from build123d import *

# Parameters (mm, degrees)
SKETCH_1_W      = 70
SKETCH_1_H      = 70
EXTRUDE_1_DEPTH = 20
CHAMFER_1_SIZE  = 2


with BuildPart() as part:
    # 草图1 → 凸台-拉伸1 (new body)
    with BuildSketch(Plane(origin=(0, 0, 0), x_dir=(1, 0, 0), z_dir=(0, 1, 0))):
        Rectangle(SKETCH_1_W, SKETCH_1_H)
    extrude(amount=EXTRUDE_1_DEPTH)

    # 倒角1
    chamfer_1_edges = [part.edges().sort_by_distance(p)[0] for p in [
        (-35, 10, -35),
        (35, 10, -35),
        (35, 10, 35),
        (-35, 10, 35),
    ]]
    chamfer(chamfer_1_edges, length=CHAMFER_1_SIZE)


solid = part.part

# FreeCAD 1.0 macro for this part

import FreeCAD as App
import Part
import Sketcher


def edges_at(feature, points):
    """Names of the edges that pass closest to the given points."""
    edges = feature.Shape.Edges
    near = lambda p: min(range(len(edges)), key=lambda i: edges[i].distToShape(Part.Vertex(*p))[0])
    return sorted({f"Edge{near(p) + 1}" for p in points})


def add_polygon(sketch, points):
    """Adds a closed chain of lines whose ends are joined by coincident constraints."""
    first, n = sketch.GeometryCount, len(points)
    for a, b in zip(points, points[1:] + points[:1]):
        sketch.addGeometry(Part.LineSegment(App.Vector(*a, 0), App.Vector(*b, 0)), False)
    for i in range(n):
        sketch.addConstraint(Sketcher.Constraint("Coincident", first + i, 2, first + (i + 1) % n, 1))

doc = App.newDocument("Part")
body = doc.addObject("PartDesign::Body", "Body")

sketch1 = body.newObject("Sketcher::SketchObject", "Sketch")
sketch1.AttachmentSupport = (doc.getObject("XZ_Plane"), [""])
sketch1.MapMode = "FlatFace"
add_polygon(sketch1, [(-35, -35), (-35, 35), (35, 35), (35, -35)])
sketch1.addConstraint([
    Sketcher.Constraint("Vertical", 0),
    Sketcher.Constraint("Horizontal", 1),
    Sketcher.Constraint("Vertical", 2),
    Sketcher.Constraint("Horizontal", 3),
    Sketcher.Constraint("Symmetric", 0, 2, 2, 2, -1, 1),
    Sketcher.Constraint("Equal", 3, 0),
    Sketcher.Constraint("DistanceX", 1, 1, 1, 2, 70.0),
])
pad1 = body.newObject("PartDesign::Pad", "Pad")
pad1.Profile = sketch1
pad1.Length = 20
pad1.Reversed = True
doc.recompute()

chamfer = body.newObject("PartDesign::Chamfer", "Chamfer")
chamfer.Base = (pad1, edges_at(pad1, [
    (-35, 10, -35),
    (35, 10, -35),
    (35, 10, 35),
    (-35, 10, 35),
]))
chamfer.Size = 2

doc.recompute()
